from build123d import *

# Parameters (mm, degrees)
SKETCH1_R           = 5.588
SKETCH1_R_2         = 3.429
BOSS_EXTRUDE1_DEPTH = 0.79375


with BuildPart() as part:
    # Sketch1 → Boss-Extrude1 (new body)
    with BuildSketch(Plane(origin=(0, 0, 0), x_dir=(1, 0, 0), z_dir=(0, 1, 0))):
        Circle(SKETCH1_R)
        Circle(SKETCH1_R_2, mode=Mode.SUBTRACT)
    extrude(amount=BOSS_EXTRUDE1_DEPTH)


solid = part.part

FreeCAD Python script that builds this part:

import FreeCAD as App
import Part
import Sketcher
Q = App.Units.Quantity

doc = App.newDocument("Part")
body = doc.addObject("PartDesign::Body", "Body")

# Sketch on XZ plane
sketch1 = doc.addObject("Sketcher::SketchObject", "Sketch")
body.addObject(sketch1)
sketch1.AttachmentSupport = (doc.XZ_Plane, [""])
sketch1.MapMode = "FlatFace"
sketch1.addGeometry(Part.Circle(App.Vector(0, 0, 0), App.Vector(0, 0, 1), 5.588), False)
sketch1.addGeometry(Part.Circle(App.Vector(0, 0, 0), App.Vector(0, 0, 1), 3.429), False)
sketch1.addConstraint(Sketcher.Constraint("Coincident", 0, 3, -1, 1))
sketch1.addConstraint(Sketcher.Constraint("Coincident", 1, 3, -1, 1))
sketch1.addConstraint(Sketcher.Constraint("Diameter", 0, Q("0.44 in")))
sketch1.addConstraint(Sketcher.Constraint("Diameter", 1, Q("0.27 in")))
pad1 = doc.addObject("PartDesign::Pad", "Pad")
body.addObject(pad1)
pad1.Profile = sketch1
pad1.Length = Q("0.03125 in")
pad1.Reversed = True

doc.recompute()
